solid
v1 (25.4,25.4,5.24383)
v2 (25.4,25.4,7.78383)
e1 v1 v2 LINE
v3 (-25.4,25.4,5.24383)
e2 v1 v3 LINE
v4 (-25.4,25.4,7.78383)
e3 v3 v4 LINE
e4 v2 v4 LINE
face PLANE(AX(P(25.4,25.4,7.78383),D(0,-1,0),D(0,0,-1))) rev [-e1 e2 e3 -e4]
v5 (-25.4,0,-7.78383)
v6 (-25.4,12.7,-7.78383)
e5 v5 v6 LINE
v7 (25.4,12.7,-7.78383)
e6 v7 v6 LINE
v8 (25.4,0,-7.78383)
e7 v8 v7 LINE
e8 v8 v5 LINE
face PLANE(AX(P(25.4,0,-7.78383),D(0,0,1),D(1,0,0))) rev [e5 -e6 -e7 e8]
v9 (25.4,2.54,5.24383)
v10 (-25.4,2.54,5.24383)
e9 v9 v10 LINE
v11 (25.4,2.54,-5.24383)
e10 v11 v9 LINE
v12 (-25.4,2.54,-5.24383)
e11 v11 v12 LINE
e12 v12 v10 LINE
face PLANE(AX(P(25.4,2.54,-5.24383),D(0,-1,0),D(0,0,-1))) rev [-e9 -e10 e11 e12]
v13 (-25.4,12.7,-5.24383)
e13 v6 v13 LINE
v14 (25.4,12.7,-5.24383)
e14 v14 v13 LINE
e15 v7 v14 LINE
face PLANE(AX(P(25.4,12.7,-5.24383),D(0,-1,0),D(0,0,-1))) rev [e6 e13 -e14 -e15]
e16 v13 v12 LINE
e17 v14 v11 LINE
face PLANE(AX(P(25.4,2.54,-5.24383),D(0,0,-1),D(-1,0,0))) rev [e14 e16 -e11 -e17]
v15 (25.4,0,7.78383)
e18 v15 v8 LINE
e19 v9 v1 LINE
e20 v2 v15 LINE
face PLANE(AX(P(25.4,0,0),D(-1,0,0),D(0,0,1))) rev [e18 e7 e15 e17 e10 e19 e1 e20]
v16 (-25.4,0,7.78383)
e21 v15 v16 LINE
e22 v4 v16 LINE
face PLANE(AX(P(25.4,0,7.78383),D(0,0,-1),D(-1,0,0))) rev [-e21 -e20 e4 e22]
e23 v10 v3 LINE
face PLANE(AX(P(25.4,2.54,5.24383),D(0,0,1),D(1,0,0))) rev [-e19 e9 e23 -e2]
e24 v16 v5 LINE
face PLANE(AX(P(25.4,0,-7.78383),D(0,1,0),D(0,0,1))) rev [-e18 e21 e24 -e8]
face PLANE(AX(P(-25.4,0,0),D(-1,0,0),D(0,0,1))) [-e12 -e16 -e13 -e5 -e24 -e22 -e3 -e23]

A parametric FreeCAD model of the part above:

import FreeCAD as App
import Part
import Sketcher

V = App.Vector
Q = App.Units.Quantity


def add_polygon(sketch, points):
    """Adds a closed chain of lines whose ends are joined by coincident constraints."""
    first, n = sketch.GeometryCount, len(points)
    for a, b in zip(points, points[1:] + points[:1]):
        sketch.addGeometry(Part.LineSegment(App.Vector(*a, 0), App.Vector(*b, 0)), False)
    for i in range(n):
        sketch.addConstraint(Sketcher.Constraint("Coincident", first + i, 2, first + (i + 1) % n, 1))

doc = App.newDocument("Part")
body = doc.addObject("PartDesign::Body", "Body")

# Sketch on YZ plane
sketch1 = body.newObject("Sketcher::SketchObject", "Sketch")
sketch1.AttachmentSupport = (doc.getObject("YZ_Plane"), [""])
sketch1.MapMode = "FlatFace"
add_polygon(sketch1, [(0, 7.8), (0, -7.8), (12.7, -7.8), (12.7, -5.2), (2.5, -5.2), (2.5, 5.2), (25.4, 5.2), (25.4, 7.8)])  # lines 0-7
sketch1.addConstraint([
    Sketcher.Constraint("Vertical", 0),
    Sketcher.Constraint("Horizontal", 1),
    Sketcher.Constraint("Vertical", 2),
    Sketcher.Constraint("Horizontal", 3),
    Sketcher.Constraint("Vertical", 4),
    Sketcher.Constraint("Horizontal", 5),
    Sketcher.Constraint("Vertical", 6),
    Sketcher.Constraint("Horizontal", 7),
    Sketcher.Constraint("Symmetric", 0, 2, 7, 2, -1, 1),
    Sketcher.Constraint("Equal", 2, 6),
    Sketcher.Constraint("DistanceX", 7, 2, 7, 1, Q("1 in")),
    Sketcher.Constraint("DistanceX", 1, 1, 1, 2, Q("0.5 in")),
    Sketcher.Constraint("DistanceX", 3, 2, 3, 1, Q("0.4 in")),
    Sketcher.Constraint("DistanceY", 2, 1, 2, 2, Q("0.1 in")),
    Sketcher.Constraint("DistanceY", 0, 2, 0, 1, Q("0.6129 in")),
])
pad1 = body.newObject("PartDesign::Pad", "Pad")
pad1.Profile = sketch1
pad1.Length = Q("2 in")
pad1.Midplane = True

doc.recompute()
